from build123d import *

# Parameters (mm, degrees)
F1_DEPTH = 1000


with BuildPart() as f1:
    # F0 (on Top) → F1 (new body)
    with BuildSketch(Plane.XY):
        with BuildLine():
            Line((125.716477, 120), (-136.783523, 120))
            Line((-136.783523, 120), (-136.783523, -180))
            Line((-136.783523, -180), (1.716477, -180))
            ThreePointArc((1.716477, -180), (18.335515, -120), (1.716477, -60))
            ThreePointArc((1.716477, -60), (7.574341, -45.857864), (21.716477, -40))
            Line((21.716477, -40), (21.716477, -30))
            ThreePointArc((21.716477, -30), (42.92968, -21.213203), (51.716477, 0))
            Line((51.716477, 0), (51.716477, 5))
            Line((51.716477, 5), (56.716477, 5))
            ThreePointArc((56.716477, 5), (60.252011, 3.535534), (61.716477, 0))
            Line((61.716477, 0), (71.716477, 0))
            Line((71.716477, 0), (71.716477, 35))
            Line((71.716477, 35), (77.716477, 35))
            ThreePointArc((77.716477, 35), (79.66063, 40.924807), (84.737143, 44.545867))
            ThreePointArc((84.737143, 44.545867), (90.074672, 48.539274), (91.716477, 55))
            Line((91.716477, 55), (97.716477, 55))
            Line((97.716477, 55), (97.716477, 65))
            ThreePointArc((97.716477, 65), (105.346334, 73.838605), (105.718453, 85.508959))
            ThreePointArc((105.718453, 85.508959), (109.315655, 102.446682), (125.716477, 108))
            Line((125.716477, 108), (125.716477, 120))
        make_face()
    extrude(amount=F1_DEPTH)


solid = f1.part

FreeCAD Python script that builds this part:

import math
import FreeCAD as App
import Part
import Sketcher
from FreeCAD import Vector

doc = App.newDocument("Part")
body = doc.addObject("PartDesign::Body", "Body")

# Sketch on XY plane
sketch1 = body.newObject("Sketcher::SketchObject", "Sketch")
sketch1.AttachmentSupport = (doc.getObject("XY_Plane"), [""])
sketch1.MapMode = "FlatFace"
sketch1.addGeometry([
    Part.LineSegment(Vector(125.7, 120, 0), Vector(-136.8, 120, 0)),  # 0
    Part.LineSegment(Vector(-136.8, 120, 0), Vector(-136.8, -180, 0)),  # 1
    Part.LineSegment(Vector(-136.8, -180, 0), Vector(1.7, -180, 0)),  # 2
    Part.ArcOfCircle(Part.Circle(Vector(-98.3, -120, 0), Vector(0, 0, 1), 116.6), math.radians(-31), math.radians(31)),  # 3
    Part.ArcOfCircle(Part.Circle(Vector(21.7, -60, 0), Vector(0, 0, 1), 20), math.radians(90), math.radians(180)),  # 4
    Part.LineSegment(Vector(21.7, -40, 0), Vector(21.7, -30, 0)),  # 5
    Part.ArcOfCircle(Part.Circle(Vector(21.7, 0, 0), Vector(0, 0, 1), 30), math.radians(-90), math.radians(0)),  # 6
    Part.LineSegment(Vector(51.7, 0, 0), Vector(51.7, 5, 0)),  # 7
    Part.LineSegment(Vector(51.7, 5, 0), Vector(56.7, 5, 0)),  # 8
    Part.ArcOfCircle(Part.Circle(Vector(56.7, 0, 0), Vector(0, 0, 1), 5), math.radians(0), math.radians(90)),  # 9
    Part.LineSegment(Vector(61.7, 0, 0), Vector(71.7, 0, 0)),  # 10
    Part.LineSegment(Vector(71.7, 0, 0), Vector(71.7, 35, 0)),  # 11
    Part.LineSegment(Vector(71.7, 35, 0), Vector(77.7, 35, 0)),  # 12
    Part.ArcOfCircle(Part.Circle(Vector(87.7, 35, 0), Vector(0, 0, 1), 10), math.radians(107), math.radians(180)),  # 13
    Part.ArcOfCircle(Part.Circle(Vector(81.8, 54.1, 0), Vector(0, 0, 1), 10), math.radians(-73), math.radians(5)),  # 14
    Part.LineSegment(Vector(91.7, 55, 0), Vector(97.7, 55, 0)),  # 15
    Part.LineSegment(Vector(97.7, 55, 0), Vector(97.7, 65, 0)),  # 16
    Part.ArcOfCircle(Part.Circle(Vector(89, 80.2, 0), Vector(0, 0, 1), 17.5), math.radians(-60), math.radians(18)),  # 17
    Part.ArcOfCircle(Part.Circle(Vector(122.4, 90.8, 0), Vector(0, 0, 1), 17.5), math.radians(79), math.radians(198)),  # 18
    Part.LineSegment(Vector(125.7, 108, 0), Vector(125.7, 120, 0)),  # 19
], False)
sketch1.addConstraint([
    Sketcher.Constraint("Coincident", 0, 2, 1, 1),
    Sketcher.Constraint("Coincident", 1, 2, 2, 1),
    Sketcher.Constraint("Coincident", 2, 2, 3, 1),
    Sketcher.Constraint("Coincident", 3, 2, 4, 2),
    Sketcher.Constraint("Coincident", 4, 1, 5, 1),
    Sketcher.Constraint("Coincident", 5, 2, 6, 1),
    Sketcher.Constraint("Tangent", 6, 2, 7, 1),
    Sketcher.Constraint("Coincident", 7, 2, 8, 1),
    Sketcher.Constraint("Tangent", 8, 2, 9, 2),
    Sketcher.Constraint("Coincident", 9, 1, 10, 1),
    Sketcher.Constraint("Coincident", 10, 2, 11, 1),
    Sketcher.Constraint("Coincident", 11, 2, 12, 1),
    Sketcher.Constraint("Coincident", 12, 2, 13, 2),
    Sketcher.Constraint("Tangent", 13, 1, 14, 1),
    Sketcher.Constraint("Coincident", 14, 2, 15, 1),
    Sketcher.Constraint("Coincident", 15, 2, 16, 1),
    Sketcher.Constraint("Coincident", 16, 2, 17, 1),
    Sketcher.Constraint("Tangent", 17, 2, 18, 2),
    Sketcher.Constraint("Coincident", 18, 1, 19, 1),
    Sketcher.Constraint("Coincident", 19, 2, 0, 1),
    Sketcher.Constraint("Horizontal", 0),
    Sketcher.Constraint("Vertical", 1),
    Sketcher.Constraint("Horizontal", 2),
    Sketcher.Constraint("Vertical", 5),
    Sketcher.Constraint("Vertical", 7),
    Sketcher.Constraint("Horizontal", 8),
    Sketcher.Constraint("Horizontal", 10),
    Sketcher.Constraint("Vertical", 11),
    Sketcher.Constraint("Horizontal", 12),
    Sketcher.Constraint("Horizontal", 15),
    Sketcher.Constraint("Vertical", 16),
    Sketcher.Constraint("Vertical", 19),
    Sketcher.Constraint("Equal", 13, 14),
    Sketcher.Constraint("PointOnObject", 6, 3, -1),
    Sketcher.Constraint("PointOnObject", 9, 3, -1),
    Sketcher.Constraint("PointOnObject", 9, 1, -1),
    Sketcher.Constraint("Horizontal", 4, 3, 3, 2),
    Sketcher.Constraint("Horizontal", 13, 3, 11, 2),
    Sketcher.Constraint("Vertical", 4, 3, 6, 3),
    Sketcher.Constraint("Vertical", 2, 2, 3, 2),
    Sketcher.Constraint("Vertical", 6, 3, 4, 1),
    Sketcher.Constraint("Equal", 12, 15),
    Sketcher.Constraint("Equal", 10, 5),
    Sketcher.Constraint("Equal", 8, 7),
    Sketcher.Constraint("Equal", 5, 16),
    Sketcher.Constraint("Radius", 4, 19.999999),
    Sketcher.Constraint("Radius", 6, 30.000001),
    Sketcher.Constraint("Radius", 9, 5.0),
    Sketcher.Constraint("Radius", 13, 9.999999),
    Sketcher.Constraint("Radius", 18, 17.5),
    Sketcher.Constraint("DistanceX", 10, 1, 10, 2, 10.0),
    Sketcher.Constraint("DistanceX", 12, 1, 12, 2, 6.0),
    Sketcher.Constraint("DistanceY", 1, 2, 1, 1, 300.0),
    Sketcher.Constraint("DistanceY", 11, 1, 11, 2, 35.0),
    Sketcher.Constraint("DistanceY", 19, 1, 19, 2, 12.0),
    Sketcher.Constraint("DistanceX", 0, 2, 0, 1, 262.5),
    Sketcher.Constraint("DistanceX", 2, 1, 2, 2, 138.5),
    Sketcher.Constraint("DistanceY", 3, 3, -1, 1, 120.0),
    Sketcher.Constraint("DistanceY", -1, 1, 14, 2, 55.0),
    Sketcher.Constraint("DistanceX", 3, 3, 9, 3, 155.0),
    Sketcher.Constraint("DistanceX", 13, 3, 14, 2, 4.000001),
    Sketcher.Constraint("Radius", 17, 17.500002),
    Sketcher.Constraint("DistanceX", -1, 1, 14, 3, 81.757811),
    Sketcher.Constraint("DistanceY", -1, 1, 17, 3, 80.19955),
])
pad1 = body.newObject("PartDesign::Pad", "Pad")
pad1.Profile = sketch1
pad1.Length = 1000

doc.recompute()
